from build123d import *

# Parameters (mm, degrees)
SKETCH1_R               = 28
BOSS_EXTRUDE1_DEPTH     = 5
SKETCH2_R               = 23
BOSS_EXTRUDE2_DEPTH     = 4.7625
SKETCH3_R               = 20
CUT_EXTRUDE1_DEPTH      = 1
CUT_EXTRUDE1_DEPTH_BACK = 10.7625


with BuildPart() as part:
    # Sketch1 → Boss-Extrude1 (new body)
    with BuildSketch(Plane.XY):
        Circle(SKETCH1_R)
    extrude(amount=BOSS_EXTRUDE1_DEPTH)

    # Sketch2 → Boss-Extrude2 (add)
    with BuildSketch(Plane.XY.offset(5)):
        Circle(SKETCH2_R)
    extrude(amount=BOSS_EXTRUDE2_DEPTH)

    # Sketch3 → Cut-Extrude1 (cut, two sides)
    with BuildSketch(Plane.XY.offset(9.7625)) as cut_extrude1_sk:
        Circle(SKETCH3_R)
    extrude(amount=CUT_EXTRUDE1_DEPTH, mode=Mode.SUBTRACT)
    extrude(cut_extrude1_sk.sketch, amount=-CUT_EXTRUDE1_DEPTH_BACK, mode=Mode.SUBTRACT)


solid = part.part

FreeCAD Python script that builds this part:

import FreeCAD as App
import Part
import Sketcher
Q = App.Units.Quantity

doc = App.newDocument("Part")
body = doc.addObject("PartDesign::Body", "Body")

sketch1 = doc.addObject("Sketcher::SketchObject", "Sketch")
body.addObject(sketch1)
sketch1.AttachmentSupport = (doc.XY_Plane, [""])
sketch1.MapMode = "FlatFace"
sketch1.addGeometry(Part.Circle(App.Vector(0, 0, 0), App.Vector(0, 0, 1), 28), False)
sketch1.addConstraint([
    Sketcher.Constraint("Coincident", 0, 3, -1, 1),
    Sketcher.Constraint("Diameter", 0, Q("56 mm")),
])
pad1 = doc.addObject("PartDesign::Pad", "Pad")
body.addObject(pad1)
pad1.Profile = sketch1
pad1.Length = 5

sketch2 = doc.addObject("Sketcher::SketchObject", "Sketch001")
body.addObject(sketch2)
sketch2.AttachmentSupport = (doc.XY_Plane, [""])
sketch2.MapMode = "FlatFace"
sketch2.AttachmentOffset = App.Placement(App.Vector(0, 0, 5), App.Rotation())
sketch2.addGeometry(Part.Circle(App.Vector(0, 0, 0), App.Vector(0, 0, 1), 23), False)
sketch2.addConstraint([
    Sketcher.Constraint("Coincident", 0, 3, -1, 1),
    Sketcher.Constraint("Diameter", 0, Q("46 mm")),
])
pad2 = doc.addObject("PartDesign::Pad", "Pad001")
body.addObject(pad2)
pad2.Profile = sketch2
pad2.Length = 4.7625

sketch3 = doc.addObject("Sketcher::SketchObject", "Sketch002")
body.addObject(sketch3)
sketch3.AttachmentSupport = (doc.XY_Plane, [""])
sketch3.MapMode = "FlatFace"
sketch3.AttachmentOffset = App.Placement(App.Vector(0, 0, 9.7625), App.Rotation())
sketch3.addGeometry(Part.Circle(App.Vector(0, 0, 0), App.Vector(0, 0, 1), 20), False)
sketch3.addConstraint([
    Sketcher.Constraint("Coincident", 0, 3, -1, 1),
    Sketcher.Constraint("Diameter", 0, Q("40 mm")),
])
pocket1 = doc.addObject("PartDesign::Pocket", "Pocket")
body.addObject(pocket1)
pocket1.Profile = sketch3
pocket1.Type = "ThroughAll"
pocket1.Midplane = True

doc.recompute()
